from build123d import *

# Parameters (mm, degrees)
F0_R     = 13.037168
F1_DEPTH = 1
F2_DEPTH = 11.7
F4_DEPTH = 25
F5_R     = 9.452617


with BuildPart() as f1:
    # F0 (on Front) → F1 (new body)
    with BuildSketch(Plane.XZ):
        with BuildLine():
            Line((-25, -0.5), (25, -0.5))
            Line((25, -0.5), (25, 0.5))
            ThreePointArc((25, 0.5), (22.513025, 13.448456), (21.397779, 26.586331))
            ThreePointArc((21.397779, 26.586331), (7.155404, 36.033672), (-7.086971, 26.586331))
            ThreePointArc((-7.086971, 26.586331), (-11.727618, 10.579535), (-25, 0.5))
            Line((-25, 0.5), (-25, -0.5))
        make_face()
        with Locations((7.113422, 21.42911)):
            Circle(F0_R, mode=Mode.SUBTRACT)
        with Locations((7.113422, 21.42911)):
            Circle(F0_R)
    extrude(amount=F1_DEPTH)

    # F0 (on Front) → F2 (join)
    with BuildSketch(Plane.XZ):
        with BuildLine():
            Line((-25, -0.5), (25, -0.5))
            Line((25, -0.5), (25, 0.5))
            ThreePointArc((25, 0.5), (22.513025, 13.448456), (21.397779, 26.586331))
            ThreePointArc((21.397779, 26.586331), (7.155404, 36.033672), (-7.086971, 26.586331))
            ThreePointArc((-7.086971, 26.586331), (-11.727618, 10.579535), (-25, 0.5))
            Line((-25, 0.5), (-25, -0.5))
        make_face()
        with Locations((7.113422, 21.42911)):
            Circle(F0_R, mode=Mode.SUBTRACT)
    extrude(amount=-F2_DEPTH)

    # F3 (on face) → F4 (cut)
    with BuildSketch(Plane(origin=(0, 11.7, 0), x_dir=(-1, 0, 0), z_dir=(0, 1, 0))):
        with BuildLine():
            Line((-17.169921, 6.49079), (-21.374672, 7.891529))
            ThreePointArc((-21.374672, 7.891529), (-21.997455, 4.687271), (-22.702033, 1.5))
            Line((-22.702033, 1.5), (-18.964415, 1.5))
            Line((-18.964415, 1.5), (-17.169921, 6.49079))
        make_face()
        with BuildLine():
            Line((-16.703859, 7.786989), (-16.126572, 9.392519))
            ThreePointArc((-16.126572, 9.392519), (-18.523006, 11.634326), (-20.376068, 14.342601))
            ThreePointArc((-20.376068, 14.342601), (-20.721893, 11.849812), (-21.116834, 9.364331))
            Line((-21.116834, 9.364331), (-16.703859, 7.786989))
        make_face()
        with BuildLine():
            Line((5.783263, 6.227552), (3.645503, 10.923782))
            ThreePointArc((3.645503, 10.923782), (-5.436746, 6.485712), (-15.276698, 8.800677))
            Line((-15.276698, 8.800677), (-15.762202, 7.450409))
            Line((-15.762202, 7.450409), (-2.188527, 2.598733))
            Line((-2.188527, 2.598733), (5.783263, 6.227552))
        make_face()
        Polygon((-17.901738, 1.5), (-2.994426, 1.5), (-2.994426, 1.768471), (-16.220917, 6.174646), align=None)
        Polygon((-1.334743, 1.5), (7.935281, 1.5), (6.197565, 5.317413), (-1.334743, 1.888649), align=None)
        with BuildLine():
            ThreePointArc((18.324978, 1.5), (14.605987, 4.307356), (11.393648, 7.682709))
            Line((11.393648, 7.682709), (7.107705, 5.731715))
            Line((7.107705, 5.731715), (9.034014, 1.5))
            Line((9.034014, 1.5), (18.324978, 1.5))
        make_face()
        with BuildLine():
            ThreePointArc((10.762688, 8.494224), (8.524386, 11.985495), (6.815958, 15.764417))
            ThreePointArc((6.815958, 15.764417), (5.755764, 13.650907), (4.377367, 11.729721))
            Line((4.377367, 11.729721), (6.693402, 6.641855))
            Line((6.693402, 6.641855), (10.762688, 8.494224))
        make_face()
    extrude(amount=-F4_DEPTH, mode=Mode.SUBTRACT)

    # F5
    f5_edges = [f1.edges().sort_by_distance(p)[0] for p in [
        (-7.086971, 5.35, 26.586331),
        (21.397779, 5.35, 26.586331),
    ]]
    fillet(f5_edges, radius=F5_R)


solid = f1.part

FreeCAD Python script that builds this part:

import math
import FreeCAD as App
import Part
import Sketcher
from FreeCAD import Vector


def edges_at(feature, points):
    """Names of the edges that pass closest to the given points."""
    edges = feature.Shape.Edges
    near = lambda p: min(range(len(edges)), key=lambda i: edges[i].distToShape(Part.Vertex(*p))[0])
    return sorted({f"Edge{near(p) + 1}" for p in points})

doc = App.newDocument("Part")
body = doc.addObject("PartDesign::Body", "Body")

# Sketch on XZ plane
sketch1 = body.newObject("Sketcher::SketchObject", "Sketch")
sketch1.AttachmentSupport = (doc.getObject("XZ_Plane"), [""])
sketch1.MapMode = "FlatFace"
sketch1.addGeometry(Part.LineSegment(Vector(-25, -0.5, 0), Vector(25, -0.5, 0)), False)
sketch1.addGeometry(Part.LineSegment(Vector(25, -0.5, 0), Vector(25, 0.5, 0)), False)
sketch1.addGeometry(Part.ArcOfCircle(Part.Circle(Vector(146.877671, 30.621777, 0), Vector(0, 0, 1), 125.544766), math.radians(-178.157997), math.radians(-166.117675)), False)
sketch1.addGeometry(Part.ArcOfCircle(Part.Circle(Vector(7.155404, 20.574428, 0), Vector(0, 0, 1), 15.459244), math.radians(22.885279), math.radians(157.114721)), False)
sketch1.addGeometry(Part.ArcOfCircle(Part.Circle(Vector(-33.594704, 25.595281, 0), Vector(0, 0, 1), 26.526253), math.radians(-71.094547), math.radians(2.141131)), False)
sketch1.addGeometry(Part.LineSegment(Vector(-25, 0.5, 0), Vector(-25, -0.5, 0)), False)
sketch1.addConstraint(Sketcher.Constraint("Coincident", 0, 2, 1, 1))
sketch1.addConstraint(Sketcher.Constraint("Coincident", 1, 2, 2, 2))
sketch1.addConstraint(Sketcher.Constraint("Coincident", 2, 1, 3, 1))
sketch1.addConstraint(Sketcher.Constraint("Coincident", 3, 2, 4, 2))
sketch1.addConstraint(Sketcher.Constraint("Coincident", 4, 1, 5, 1))
sketch1.addConstraint(Sketcher.Constraint("Coincident", 5, 2, 0, 1))
sketch1.addConstraint(Sketcher.Constraint("Horizontal", 0))
sketch1.addConstraint(Sketcher.Constraint("Vertical", 1))
sketch1.addConstraint(Sketcher.Constraint("Vertical", 5))
sketch1.addConstraint(Sketcher.Constraint("Symmetric", 0, 2, 4, 1, -1, 1))
sketch1.addConstraint(Sketcher.Constraint("Horizontal", 2, 1, 3, 2))
sketch1.addConstraint(Sketcher.Constraint("Horizontal", 1, 2, 4, 1))
sketch1.addConstraint(Sketcher.Constraint("DistanceX", 0, 1, 0, 2, 50.0))
sketch1.addConstraint(Sketcher.Constraint("DistanceY", 1, 1, 1, 2, 1.0))
sketch1.addConstraint(Sketcher.Constraint("Radius", 2, 125.544766))
sketch1.addConstraint(Sketcher.Constraint("Radius", 3, 15.459244))
sketch1.addConstraint(Sketcher.Constraint("Radius", 4, 26.526253))
sketch1.addConstraint(Sketcher.Constraint("DistanceX", -1, 1, 2, 3, 146.877671))
sketch1.addConstraint(Sketcher.Constraint("DistanceY", -1, 1, 3, 3, 20.574428))
sketch1.addConstraint(Sketcher.Constraint("DistanceY", -1, 1, 4, 3, 25.595281))
pad1 = body.newObject("PartDesign::Pad", "Pad")
pad1.Profile = sketch1
pad1.Length = 1

# Sketch on XZ plane
sketch2 = body.newObject("Sketcher::SketchObject", "Sketch001")
sketch2.AttachmentSupport = (doc.getObject("XZ_Plane"), [""])
sketch2.MapMode = "FlatFace"
sketch2.addGeometry(Part.LineSegment(Vector(-25, -0.5, 0), Vector(25, -0.5, 0)), False)
sketch2.addGeometry(Part.LineSegment(Vector(25, -0.5, 0), Vector(25, 0.5, 0)), False)
sketch2.addGeometry(Part.ArcOfCircle(Part.Circle(Vector(146.877671, 30.621777, 0), Vector(0, 0, 1), 125.544766), math.radians(-178.157997), math.radians(-166.117675)), False)
sketch2.addGeometry(Part.ArcOfCircle(Part.Circle(Vector(7.155404, 20.574428, 0), Vector(0, 0, 1), 15.459244), math.radians(22.885279), math.radians(157.114721)), False)
sketch2.addGeometry(Part.ArcOfCircle(Part.Circle(Vector(-33.594704, 25.595281, 0), Vector(0, 0, 1), 26.526253), math.radians(-71.094547), math.radians(2.141131)), False)
sketch2.addGeometry(Part.LineSegment(Vector(-25, 0.5, 0), Vector(-25, -0.5, 0)), False)
sketch2.addGeometry(Part.Circle(Vector(7.113422, 21.42911, 0), Vector(0, 0, 1), 13.037168), False)
sketch2.addConstraint(Sketcher.Constraint("Coincident", 0, 2, 1, 1))
sketch2.addConstraint(Sketcher.Constraint("Coincident", 1, 2, 2, 2))
sketch2.addConstraint(Sketcher.Constraint("Coincident", 2, 1, 3, 1))
sketch2.addConstraint(Sketcher.Constraint("Coincident", 3, 2, 4, 2))
sketch2.addConstraint(Sketcher.Constraint("Coincident", 4, 1, 5, 1))
sketch2.addConstraint(Sketcher.Constraint("Coincident", 5, 2, 0, 1))
sketch2.addConstraint(Sketcher.Constraint("Horizontal", 0))
sketch2.addConstraint(Sketcher.Constraint("Vertical", 1))
sketch2.addConstraint(Sketcher.Constraint("Vertical", 5))
sketch2.addConstraint(Sketcher.Constraint("Symmetric", 0, 2, 4, 1, -1, 1))
sketch2.addConstraint(Sketcher.Constraint("Horizontal", 2, 1, 3, 2))
sketch2.addConstraint(Sketcher.Constraint("Horizontal", 1, 2, 4, 1))
sketch2.addConstraint(Sketcher.Constraint("DistanceX", 0, 1, 0, 2, 50.0))
sketch2.addConstraint(Sketcher.Constraint("DistanceY", 1, 1, 1, 2, 1.0))
sketch2.addConstraint(Sketcher.Constraint("Diameter", 6, 26.074336))
sketch2.addConstraint(Sketcher.Constraint("Radius", 2, 125.544766))
sketch2.addConstraint(Sketcher.Constraint("Radius", 3, 15.459244))
sketch2.addConstraint(Sketcher.Constraint("Radius", 4, 26.526253))
sketch2.addConstraint(Sketcher.Constraint("DistanceX", -1, 1, 2, 3, 146.877671))
sketch2.addConstraint(Sketcher.Constraint("DistanceY", -1, 1, 3, 3, 20.574428))
sketch2.addConstraint(Sketcher.Constraint("DistanceY", -1, 1, 4, 3, 25.595281))
sketch2.addConstraint(Sketcher.Constraint("DistanceY", -1, 1, 6, 3, 21.42911))
sketch2.addConstraint(Sketcher.Constraint("DistanceX", 6, 3, 3, 3, 0.041982))
pad2 = body.newObject("PartDesign::Pad", "Pad001")
pad2.Profile = sketch2
pad2.Length = 11.7
pad2.Reversed = True

# Sketch on XZ plane
sketch3 = body.newObject("Sketcher::SketchObject", "Sketch002")
sketch3.AttachmentSupport = (doc.getObject("XZ_Plane"), [""])
sketch3.MapMode = "FlatFace"
sketch3.AttachmentOffset = App.Placement(Vector(0, 0, -11.7), App.Rotation())
sketch3.addGeometry(Part.LineSegment(Vector(17.169921, 6.49079, 0), Vector(21.374672, 7.891529, 0)), False)
sketch3.addGeometry(Part.ArcOfCircle(Part.Circle(Vector(146.877678, 30.621776, 0), Vector(0, 0, 1), 127.544771), math.radians(-169.73426), math.radians(-166.801469)), False)
sketch3.addGeometry(Part.LineSegment(Vector(22.702033, 1.5, 0), Vector(18.964415, 1.5, 0)), False)
sketch3.addGeometry(Part.LineSegment(Vector(18.964415, 1.5, 0), Vector(17.169921, 6.49079, 0)), False)
sketch3.addGeometry(Part.LineSegment(Vector(16.703859, 7.786989, 0), Vector(16.126572, 9.392519, 0)), False)
sketch3.addGeometry(Part.ArcOfCircle(Part.Circle(Vector(7.113431, 21.429102, 0), Vector(0, 0, 1), 15.037156), math.radians(-53.173679), math.radians(-28.11651)), False)
sketch3.addGeometry(Part.ArcOfCircle(Part.Circle(Vector(146.880467, 30.622193, 0), Vector(0, 0, 1), 127.547591), math.radians(-172.667026), math.radians(-170.405964)), False)
sketch3.addGeometry(Part.LineSegment(Vector(21.116834, 9.364331, 0), Vector(16.703859, 7.786989, 0)), False)
sketch3.addGeometry(Part.LineSegment(Vector(-5.783263, 6.227552, 0), Vector(-3.645503, 10.923782, 0)), False)
sketch3.addGeometry(Part.ArcOfCircle(Part.Circle(Vector(7.113422, 21.42911, 0), Vector(0, 0, 1), 15.037167), math.radians(-135.683276), math.radians(-57.120553)), False)
sketch3.addGeometry(Part.LineSegment(Vector(15.276698, 8.800677, 0), Vector(15.762202, 7.450409, 0)), False)
sketch3.addGeometry(Part.LineSegment(Vector(15.762202, 7.450409, 0), Vector(2.188527, 2.598733, 0)), False)
sketch3.addGeometry(Part.LineSegment(Vector(2.188527, 2.598733, 0), Vector(-5.783263, 6.227552, 0)), False)
sketch3.addGeometry(Part.LineSegment(Vector(17.901738, 1.5, 0), Vector(2.994426, 1.5, 0)), False)
sketch3.addGeometry(Part.LineSegment(Vector(2.994426, 1.5, 0), Vector(2.994426, 1.768471, 0)), False)
sketch3.addGeometry(Part.LineSegment(Vector(2.994426, 1.768471, 0), Vector(16.220917, 6.174646, 0)), False)
sketch3.addGeometry(Part.LineSegment(Vector(16.220917, 6.174646, 0), Vector(17.901738, 1.5, 0)), False)
sketch3.addGeometry(Part.LineSegment(Vector(1.334743, 1.5, 0), Vector(-7.935281, 1.5, 0)), False)
sketch3.addGeometry(Part.LineSegment(Vector(-7.935281, 1.5, 0), Vector(-6.197565, 5.317413, 0)), False)
sketch3.addGeometry(Part.LineSegment(Vector(-6.197565, 5.317413, 0), Vector(1.334743, 1.888649, 0)), False)
sketch3.addGeometry(Part.LineSegment(Vector(1.334743, 1.888649, 0), Vector(1.334743, 1.5, 0)), False)
sketch3.addGeometry(Part.ArcOfCircle(Part.Circle(Vector(-33.594691, 25.595269, 0), Vector(0, 0, 1), 28.526236), math.radians(-57.636646), math.radians(-38.897774)), False)
sketch3.addGeometry(Part.LineSegment(Vector(-11.393648, 7.682709, 0), Vector(-7.107705, 5.731715, 0)), False)
sketch3.addGeometry(Part.LineSegment(Vector(-7.107705, 5.731715, 0), Vector(-9.034014, 1.5, 0)), False)
sketch3.addGeometry(Part.LineSegment(Vector(-9.034014, 1.5, 0), Vector(-18.324978, 1.5, 0)), False)
sketch3.addGeometry(Part.ArcOfCircle(Part.Circle(Vector(-33.594696, 25.595278, 0), Vector(0, 0, 1), 28.526245), math.radians(-36.833018), math.radians(-20.158915)), False)
sketch3.addGeometry(Part.ArcOfCircle(Part.Circle(Vector(7.11339, 21.42909, 0), Vector(0, 0, 1), 15.03713), math.radians(-157.86981), math.radians(-139.832227)), False)
sketch3.addGeometry(Part.LineSegment(Vector(-4.377367, 11.729721, 0), Vector(-6.693402, 6.641855, 0)), False)
sketch3.addGeometry(Part.LineSegment(Vector(-6.693402, 6.641855, 0), Vector(-10.762688, 8.494224, 0)), False)
sketch3.addConstraint(Sketcher.Constraint("Coincident", 0, 2, 1, 1))
sketch3.addConstraint(Sketcher.Constraint("Coincident", 1, 2, 2, 1))
sketch3.addConstraint(Sketcher.Constraint("Coincident", 2, 2, 3, 1))
sketch3.addConstraint(Sketcher.Constraint("Coincident", 3, 2, 0, 1))
sketch3.addConstraint(Sketcher.Constraint("Coincident", 4, 2, 5, 1))
sketch3.addConstraint(Sketcher.Constraint("Coincident", 5, 2, 6, 1))
sketch3.addConstraint(Sketcher.Constraint("Coincident", 6, 2, 7, 1))
sketch3.addConstraint(Sketcher.Constraint("Coincident", 7, 2, 4, 1))
sketch3.addConstraint(Sketcher.Constraint("Coincident", 8, 2, 9, 1))
sketch3.addConstraint(Sketcher.Constraint("Coincident", 9, 2, 10, 1))
sketch3.addConstraint(Sketcher.Constraint("Coincident", 10, 2, 11, 1))
sketch3.addConstraint(Sketcher.Constraint("Coincident", 11, 2, 12, 1))
sketch3.addConstraint(Sketcher.Constraint("Coincident", 12, 2, 8, 1))
sketch3.addConstraint(Sketcher.Constraint("Coincident", 13, 2, 14, 1))
sketch3.addConstraint(Sketcher.Constraint("Coincident", 14, 2, 15, 1))
sketch3.addConstraint(Sketcher.Constraint("Coincident", 15, 2, 16, 1))
sketch3.addConstraint(Sketcher.Constraint("Coincident", 16, 2, 13, 1))
sketch3.addConstraint(Sketcher.Constraint("Coincident", 17, 2, 18, 1))
sketch3.addConstraint(Sketcher.Constraint("Coincident", 18, 2, 19, 1))
sketch3.addConstraint(Sketcher.Constraint("Coincident", 19, 2, 20, 1))
sketch3.addConstraint(Sketcher.Constraint("Coincident", 20, 2, 17, 1))
sketch3.addConstraint(Sketcher.Constraint("Coincident", 21, 2, 22, 1))
sketch3.addConstraint(Sketcher.Constraint("Coincident", 22, 2, 23, 1))
sketch3.addConstraint(Sketcher.Constraint("Coincident", 23, 2, 24, 1))
sketch3.addConstraint(Sketcher.Constraint("Coincident", 24, 2, 21, 1))
sketch3.addConstraint(Sketcher.Constraint("Coincident", 25, 2, 26, 1))
sketch3.addConstraint(Sketcher.Constraint("Coincident", 26, 2, 27, 1))
sketch3.addConstraint(Sketcher.Constraint("Coincident", 27, 2, 28, 1))
sketch3.addConstraint(Sketcher.Constraint("Coincident", 28, 2, 25, 1))
sketch3.addConstraint(Sketcher.Constraint("Horizontal", 2))
sketch3.addConstraint(Sketcher.Constraint("Horizontal", 13))
sketch3.addConstraint(Sketcher.Constraint("Vertical", 14))
sketch3.addConstraint(Sketcher.Constraint("Horizontal", 17))
sketch3.addConstraint(Sketcher.Constraint("Vertical", 20))
sketch3.addConstraint(Sketcher.Constraint("Horizontal", 24))
sketch3.addConstraint(Sketcher.Constraint("DistanceY", -1, 1, 1, 2, 1.5))
sketch3.addConstraint(Sketcher.Constraint("DistanceY", -1, 1, 13, 2, 1.5))
sketch3.addConstraint(Sketcher.Constraint("DistanceY", -1, 1, 17, 2, 1.5))
sketch3.addConstraint(Sketcher.Constraint("DistanceY", -1, 1, 23, 2, 1.5))
sketch3.addConstraint(Sketcher.Constraint("Radius", 1, 127.544771))
sketch3.addConstraint(Sketcher.Constraint("Radius", 6, 127.547591))
sketch3.addConstraint(Sketcher.Constraint("Radius", 26, 15.03713))
sketch3.addConstraint(Sketcher.Constraint("Radius", 5, 15.037156))
sketch3.addConstraint(Sketcher.Constraint("Radius", 9, 15.037167))
sketch3.addConstraint(Sketcher.Constraint("Radius", 21, 28.526236))
sketch3.addConstraint(Sketcher.Constraint("Radius", 25, 28.526245))
sketch3.addConstraint(Sketcher.Constraint("Distance", 3, 5.303602))
sketch3.addConstraint(Sketcher.Constraint("Distance", 7, 4.686401))
sketch3.addConstraint(Sketcher.Constraint("Distance", 10, 1.4349))
sketch3.addConstraint(Sketcher.Constraint("DistanceX", 2, 2, 2, 1, 3.737618))
sketch3.addConstraint(Sketcher.Constraint("DistanceY", 14, 1, 14, 2, 0.268471))
sketch3.addConstraint(Sketcher.Constraint("DistanceY", 20, 2, 20, 1, 0.388649))
sketch3.addConstraint(Sketcher.Constraint("DistanceY", -1, 1, 5, 3, 21.429102))
sketch3.addConstraint(Sketcher.Constraint("DistanceY", -1, 1, 5, 2, 14.342601))
sketch3.addConstraint(Sketcher.Constraint("DistanceX", -1, 1, 9, 2, 15.276698))
sketch3.addConstraint(Sketcher.Constraint("DistanceX", 9, 3, 3, 2, 10.056499))
sketch3.addConstraint(Sketcher.Constraint("DistanceX", 4, 2, 0, 2, 5.2481))
sketch3.addConstraint(Sketcher.Constraint("DistanceY", 0, 2, 6, 2, 1.472802))
sketch3.addConstraint(Sketcher.Constraint("DistanceX", 6, 2, 1, 2, 1.585199))
sketch3.addConstraint(Sketcher.Constraint("DistanceY", 3, 2, 7, 2, 1.296199))
sketch3.addConstraint(Sketcher.Constraint("DistanceX", 11, 2, 13, 2, 0.805899))
sketch3.addConstraint(Sketcher.Constraint("DistanceX", 22, 2, 8, 2, 3.462202))
sketch3.addConstraint(Sketcher.Constraint("DistanceX", 18, 2, 26, 2, 1.820198))
sketch3.addConstraint(Sketcher.Constraint("DistanceX", 27, 2, 8, 2, 3.047899))
sketch3.addConstraint(Sketcher.Constraint("Distance", 0, 4.43193))
sketch3.addConstraint(Sketcher.Constraint("Distance", 4, 1.706161))
sketch3.addConstraint(Sketcher.Constraint("DistanceX", 13, 2, 13, 1, 14.907312))
sketch3.addConstraint(Sketcher.Constraint("DistanceX", 17, 2, 17, 1, 9.270024))
sketch3.addConstraint(Sketcher.Constraint("DistanceX", 24, 2, 24, 1, 9.290964))
sketch3.addConstraint(Sketcher.Constraint("DistanceX", -1, 1, 1, 3, 146.877678))
sketch3.addConstraint(Sketcher.Constraint("DistanceX", -1, 1, 5, 3, 7.113431))
sketch3.addConstraint(Sketcher.Constraint("DistanceY", -1, 1, 9, 3, 21.42911))
sketch3.addConstraint(Sketcher.Constraint("DistanceX", 21, 3, -1, 1, 33.594691))
sketch3.addConstraint(Sketcher.Constraint("DistanceY", -1, 1, 21, 3, 25.595269))
sketch3.addConstraint(Sketcher.Constraint("DistanceY", -1, 1, 25, 3, 25.595278))
sketch3.addConstraint(Sketcher.Constraint("DistanceX", -1, 1, 26, 3, 7.11339))
sketch3.addConstraint(Sketcher.Constraint("DistanceY", -1, 1, 26, 3, 21.42909))
sketch3.addConstraint(Sketcher.Constraint("DistanceY", -1, 1, 0, 2, 7.891529))
sketch3.addConstraint(Sketcher.Constraint("DistanceY", -1, 1, 8, 2, 10.923782))
sketch3.addConstraint(Sketcher.Constraint("DistanceY", -1, 1, 10, 2, 7.450409))
sketch3.addConstraint(Sketcher.Constraint("DistanceX", -1, 1, 16, 2, 17.901738))
sketch3.addConstraint(Sketcher.Constraint("DistanceX", 17, 2, -1, 1, 7.935281))
sketch3.addConstraint(Sketcher.Constraint("DistanceX", 21, 2, -1, 1, 11.393648))
sketch3.addConstraint(Sketcher.Constraint("DistanceX", 25, 2, -1, 1, 6.815958))
sketch3.addConstraint(Sketcher.Constraint("DistanceY", -1, 1, 26, 2, 11.729721))
sketch3.addConstraint(Sketcher.Constraint("DistanceX", 28, 2, -1, 1, 10.762688))
sketch3.addConstraint(Sketcher.Constraint("DistanceY", 11, 2, 8, 2, 8.325049))
sketch3.addConstraint(Sketcher.Constraint("DistanceX", 12, 2, 8, 2, 2.13776))
sketch3.addConstraint(Sketcher.Constraint("DistanceY", 12, 2, 8, 2, 4.69623))
sketch3.addConstraint(Sketcher.Constraint("DistanceX", 9, 2, 15, 2, 0.944219))
sketch3.addConstraint(Sketcher.Constraint("DistanceY", 15, 2, 9, 2, 2.626031))
sketch3.addConstraint(Sketcher.Constraint("DistanceY", 18, 2, 12, 2, 0.910139))
sketch3.addConstraint(Sketcher.Constraint("DistanceY", 22, 2, 27, 2, 0.91014))
sketch3.addConstraint(Sketcher.Constraint("DistanceY", 18, 2, 27, 2, 1.324442))
pocket1 = body.newObject("PartDesign::Pocket", "Pocket")
pocket1.Profile = sketch3
pocket1.Length = 25
pocket1.Reversed = True
doc.recompute()

fillet = body.newObject("PartDesign::Fillet", "Fillet")
fillet.Base = (pocket1, edges_at(pocket1, [(-7.087, 5.35, 26.586), (21.398, 5.35, 26.586)]))
fillet.Radius = 9.452617

doc.recompute()
